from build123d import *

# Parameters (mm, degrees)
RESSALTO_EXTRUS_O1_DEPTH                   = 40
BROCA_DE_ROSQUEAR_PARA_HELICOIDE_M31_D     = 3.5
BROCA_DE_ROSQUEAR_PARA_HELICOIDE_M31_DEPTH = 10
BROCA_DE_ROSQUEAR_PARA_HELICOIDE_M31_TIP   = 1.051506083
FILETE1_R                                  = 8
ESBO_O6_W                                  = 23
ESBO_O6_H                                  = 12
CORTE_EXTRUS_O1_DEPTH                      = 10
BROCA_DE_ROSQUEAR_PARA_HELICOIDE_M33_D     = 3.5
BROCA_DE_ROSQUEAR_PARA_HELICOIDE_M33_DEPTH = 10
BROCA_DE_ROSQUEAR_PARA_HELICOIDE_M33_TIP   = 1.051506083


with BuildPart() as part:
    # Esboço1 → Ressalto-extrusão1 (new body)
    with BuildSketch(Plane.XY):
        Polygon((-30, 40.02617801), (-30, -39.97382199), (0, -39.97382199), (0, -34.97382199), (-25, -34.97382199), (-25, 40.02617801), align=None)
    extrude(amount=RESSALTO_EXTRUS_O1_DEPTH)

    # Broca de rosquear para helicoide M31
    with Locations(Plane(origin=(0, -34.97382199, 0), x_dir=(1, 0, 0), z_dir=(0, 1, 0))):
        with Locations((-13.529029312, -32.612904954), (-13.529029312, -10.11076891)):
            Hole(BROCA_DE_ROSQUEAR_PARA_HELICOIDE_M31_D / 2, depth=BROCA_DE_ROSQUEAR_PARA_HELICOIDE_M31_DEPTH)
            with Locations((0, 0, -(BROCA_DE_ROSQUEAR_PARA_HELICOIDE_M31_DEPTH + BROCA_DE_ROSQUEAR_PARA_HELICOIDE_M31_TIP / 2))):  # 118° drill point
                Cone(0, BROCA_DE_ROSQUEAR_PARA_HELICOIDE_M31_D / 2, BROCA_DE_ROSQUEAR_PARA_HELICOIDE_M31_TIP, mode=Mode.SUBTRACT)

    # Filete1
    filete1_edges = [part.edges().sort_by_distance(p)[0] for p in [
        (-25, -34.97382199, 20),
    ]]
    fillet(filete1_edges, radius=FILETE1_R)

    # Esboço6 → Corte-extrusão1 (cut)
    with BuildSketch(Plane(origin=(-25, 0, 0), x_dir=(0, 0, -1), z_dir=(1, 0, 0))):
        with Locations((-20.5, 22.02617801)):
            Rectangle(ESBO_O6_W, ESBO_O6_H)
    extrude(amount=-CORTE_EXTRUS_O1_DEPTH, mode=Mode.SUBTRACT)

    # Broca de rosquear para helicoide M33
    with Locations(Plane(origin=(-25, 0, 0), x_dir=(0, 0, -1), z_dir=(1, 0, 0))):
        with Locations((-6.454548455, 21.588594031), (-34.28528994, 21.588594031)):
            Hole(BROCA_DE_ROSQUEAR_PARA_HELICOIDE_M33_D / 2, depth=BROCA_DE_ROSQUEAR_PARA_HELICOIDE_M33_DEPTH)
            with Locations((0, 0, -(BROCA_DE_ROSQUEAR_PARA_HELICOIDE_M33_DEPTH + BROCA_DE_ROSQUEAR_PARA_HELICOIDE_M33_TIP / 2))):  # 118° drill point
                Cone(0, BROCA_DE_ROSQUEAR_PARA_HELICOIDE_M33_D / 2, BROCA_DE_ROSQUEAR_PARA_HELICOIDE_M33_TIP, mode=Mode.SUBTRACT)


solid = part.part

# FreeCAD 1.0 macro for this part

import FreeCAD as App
import Part
import Sketcher

V = App.Vector


def edges_at(feature, points):
    """Names of the edges that pass closest to the given points."""
    edges = feature.Shape.Edges
    near = lambda p: min(range(len(edges)), key=lambda i: edges[i].distToShape(Part.Vertex(*p))[0])
    return sorted({f"Edge{near(p) + 1}" for p in points})


def add_polygon(sketch, points):
    """Adds a closed chain of lines whose ends are joined by coincident constraints."""
    first, n = sketch.GeometryCount, len(points)
    for a, b in zip(points, points[1:] + points[:1]):
        sketch.addGeometry(Part.LineSegment(App.Vector(*a, 0), App.Vector(*b, 0)), False)
    for i in range(n):
        sketch.addConstraint(Sketcher.Constraint("Coincident", first + i, 2, first + (i + 1) % n, 1))

doc = App.newDocument("Part")
params = doc.addObject("Spreadsheet::Sheet", "Params")
for row, (alias, value) in enumerate([
    ("sketch1_width", "30 mm"),
    ("sketch1_width2", "25 mm"),
    ("sketch1_height", "80 mm"),
    ("pad1_length", "40 mm"),
    ("sketch2_diameter", "3.5 mm"),
    ("hole_diameter", "3.5 mm"),
    ("hole_depth", "10 mm"),
    ("fillet_radius", "8 mm"),
    ("sketch3_width", "12 mm"),
    ("sketch3_height", "23 mm"),
    ("pocket1_length", "10 mm"),
    ("sketch4_diameter", "3.5 mm"),
    ("hole2_diameter", "3.5 mm"),
    ("hole2_depth", "10 mm"),
], start=1):
    params.set(f"A{row}", alias)
    params.set(f"B{row}", "=" + value)
    params.setAlias(f"B{row}", alias)

body = doc.addObject("PartDesign::Body", "Body")

# Sketch on XY plane
sketch1 = doc.addObject("Sketcher::SketchObject", "Sketch")
body.addObject(sketch1)
sketch1.AttachmentSupport = (doc.XY_Plane, [""])
sketch1.MapMode = "FlatFace"
add_polygon(sketch1, [(-30, 40), (-30, -40), (0, -40), (0, -35), (-25, -35), (-25, 40)])  # lines 0-5
sketch1.addConstraint([
    Sketcher.Constraint("Vertical", 0),
    Sketcher.Constraint("Horizontal", 1),
    Sketcher.Constraint("Vertical", 2),
    Sketcher.Constraint("Horizontal", 3),
    Sketcher.Constraint("Vertical", 4),
    Sketcher.Constraint("Horizontal", 5),
    Sketcher.Constraint("PointOnObject", 1, 2, -2),
    Sketcher.Constraint("Equal", 5, 2),
    Sketcher.Constraint("DistanceX", 1, 1, 1, 2, 30.0),
    Sketcher.Constraint("DistanceX", 3, 2, 3, 1, 25.0),
    Sketcher.Constraint("DistanceY", 0, 2, 0, 1, 80.0),
    Sketcher.Constraint("DistanceY", 0, 2, -1, 1, 39.973822),
])
sketch1.setExpression("Constraints[14]", "Params.sketch1_width")
sketch1.setExpression("Constraints[15]", "Params.sketch1_width2")
sketch1.setExpression("Constraints[16]", "Params.sketch1_height")
pad1 = doc.addObject("PartDesign::Pad", "Pad")
body.addObject(pad1)
pad1.Profile = sketch1
pad1.setExpression("Length", "Params.pad1_length")

# Sketch on XZ plane
sketch2 = doc.addObject("Sketcher::SketchObject", "Sketch001")
body.addObject(sketch2)
sketch2.AttachmentSupport = (doc.XZ_Plane, [""])
sketch2.MapMode = "FlatFace"
sketch2.AttachmentOffset = App.Placement(V(0, 0, 34.973822), App.Rotation())
sketch2.addGeometry([
    Part.Circle(V(-13.5, 32.6, 0), V(0, 0, 1), 1.8),
    Part.Circle(V(-13.5, 10.1, 0), V(0, 0, 1), 1.8),
], False)
sketch2.addConstraint([
    Sketcher.Constraint("Equal", 0, 1),
    Sketcher.Constraint("Vertical", 0, 3, 1, 3),
    Sketcher.Constraint("Diameter", 0, 3.5),
    Sketcher.Constraint("DistanceX", 0, 3, -1, 1, 13.529029),
    Sketcher.Constraint("DistanceY", -1, 1, 1, 3, 10.110769),
    Sketcher.Constraint("DistanceY", -1, 1, 0, 3, 32.612905),
])
sketch2.setExpression("Constraints[2]", "Params.sketch2_diameter")
doc.recompute()
hole = doc.addObject("PartDesign::Hole", "Hole")
body.addObject(hole)
hole.Profile = sketch2
hole.ThreadType = "None"
hole.setExpression("Diameter", "Params.hole_diameter")
hole.DepthType = "Dimension"
hole.setExpression("Depth", "Params.hole_depth")
hole.DrillPoint = "Angled"
hole.DrillPointAngle = 118
hole.Reversed = True
doc.recompute()

fillet = doc.addObject("PartDesign::Fillet", "Fillet")
body.addObject(fillet)
fillet.Base = (hole, edges_at(hole, [(-25, -34.974, 20)]))
fillet.setExpression("Radius", "Params.fillet_radius")

# Sketch on YZ plane
sketch3 = doc.addObject("Sketcher::SketchObject", "Sketch002")
body.addObject(sketch3)
sketch3.AttachmentSupport = (doc.YZ_Plane, [""])
sketch3.MapMode = "FlatFace"
sketch3.AttachmentOffset = App.Placement(V(0, 0, -25), App.Rotation())
add_polygon(sketch3, [(28, 32), (16, 32), (16, 9), (28, 9)])  # lines 0-3
sketch3.addConstraint([
    Sketcher.Constraint("Horizontal", 0),
    Sketcher.Constraint("Vertical", 1),
    Sketcher.Constraint("Horizontal", 2),
    Sketcher.Constraint("Vertical", 3),
    Sketcher.Constraint("DistanceX", 0, 2, 0, 1, 12.0),
    Sketcher.Constraint("DistanceY", 1, 2, 1, 1, 23.0),
    Sketcher.Constraint("DistanceY", -1, 1, 0, 2, 32.0),
    Sketcher.Constraint("DistanceX", -1, 1, 0, 2, 16.026178),
])
sketch3.setExpression("Constraints[8]", "Params.sketch3_width")
sketch3.setExpression("Constraints[9]", "Params.sketch3_height")
pocket1 = doc.addObject("PartDesign::Pocket", "Pocket")
body.addObject(pocket1)
pocket1.Profile = sketch3
pocket1.setExpression("Length", "Params.pocket1_length")

# Sketch on YZ plane
sketch4 = doc.addObject("Sketcher::SketchObject", "Sketch003")
body.addObject(sketch4)
sketch4.AttachmentSupport = (doc.YZ_Plane, [""])
sketch4.MapMode = "FlatFace"
sketch4.AttachmentOffset = App.Placement(V(0, 0, -25), App.Rotation())
sketch4.addGeometry([
    Part.Circle(V(21.6, 6.5, 0), V(0, 0, 1), 1.8),
    Part.Circle(V(21.6, 34.3, 0), V(0, 0, 1), 1.8),
], False)
sketch4.addConstraint([
    Sketcher.Constraint("Equal", 0, 1),
    Sketcher.Constraint("Vertical", 0, 3, 1, 3),
    Sketcher.Constraint("Diameter", 0, 3.5),
    Sketcher.Constraint("DistanceY", -1, 1, 0, 3, 6.454548),
    Sketcher.Constraint("DistanceY", -1, 1, 1, 3, 34.28529),
    Sketcher.Constraint("DistanceX", -1, 1, 0, 3, 21.588594),
])
sketch4.setExpression("Constraints[2]", "Params.sketch4_diameter")
doc.recompute()
hole2 = doc.addObject("PartDesign::Hole", "Hole001")
body.addObject(hole2)
hole2.Profile = sketch4
hole2.ThreadType = "None"
hole2.setExpression("Diameter", "Params.hole2_diameter")
hole2.DepthType = "Dimension"
hole2.setExpression("Depth", "Params.hole2_depth")
hole2.DrillPoint = "Angled"
hole2.DrillPointAngle = 118

doc.recompute()
